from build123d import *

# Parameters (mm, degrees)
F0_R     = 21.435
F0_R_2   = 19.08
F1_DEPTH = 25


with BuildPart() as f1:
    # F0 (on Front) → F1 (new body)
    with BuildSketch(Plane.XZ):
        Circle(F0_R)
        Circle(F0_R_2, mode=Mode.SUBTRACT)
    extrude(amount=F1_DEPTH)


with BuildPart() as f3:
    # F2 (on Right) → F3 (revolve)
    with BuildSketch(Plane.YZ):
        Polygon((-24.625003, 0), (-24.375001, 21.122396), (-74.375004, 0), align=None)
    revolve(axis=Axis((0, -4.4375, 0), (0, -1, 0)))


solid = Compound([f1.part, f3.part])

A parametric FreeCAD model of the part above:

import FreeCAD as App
import Part
import Sketcher

V = App.Vector

doc = App.newDocument("Part")
body = doc.addObject("PartDesign::Body", "Body")

sketch1 = body.newObject("Sketcher::SketchObject", "Sketch")
sketch1.AttachmentSupport = (doc.getObject("XZ_Plane"), [""])
sketch1.MapMode = "FlatFace"
sketch1.addGeometry(Part.Circle(V(0, 0, 0), V(0, 0, 1), 21), False)
sketch1.addGeometry(Part.Circle(V(0, 0, 0), V(0, 0, 1), 19), False)
sketch1.addConstraint(Sketcher.Constraint("Coincident", 0, 3, -1, 1))
sketch1.addConstraint(Sketcher.Constraint("Coincident", 1, 3, -1, 1))
sketch1.addConstraint(Sketcher.Constraint("Diameter", 0, 42.87))
sketch1.addConstraint(Sketcher.Constraint("Diameter", 1, 38.16))
pad1 = body.newObject("PartDesign::Pad", "Pad")
pad1.Profile = sketch1
pad1.Length = 25
body2 = doc.addObject("PartDesign::Body", "Body001")

sketch2 = body2.newObject("Sketcher::SketchObject", "Sketch001")
sketch2.AttachmentSupport = (doc.getObject("YZ_Plane001"), [""])
sketch2.MapMode = "FlatFace"
sketch2.addGeometry(Part.LineSegment(V(-25, 0, 0), V(-24, 21, 0)), False)
sketch2.addGeometry(Part.LineSegment(V(-24, 21, 0), V(-74, 0, 0)), False)
sketch2.addGeometry(Part.LineSegment(V(-74, 0, 0), V(-25, 0, 0)), False)
sketch2.addConstraint(Sketcher.Constraint("Coincident", 0, 2, 1, 1))
sketch2.addConstraint(Sketcher.Constraint("Coincident", 1, 2, 2, 1))
sketch2.addConstraint(Sketcher.Constraint("Coincident", 2, 2, 0, 1))
sketch2.addConstraint(Sketcher.Constraint("Horizontal", 2))
sketch2.addConstraint(Sketcher.Constraint("PointOnObject", 1, 2, -1))
sketch2.addConstraint(Sketcher.Constraint("DistanceX", 2, 1, 2, 2, 49.750001))
sketch2.addConstraint(Sketcher.Constraint("DistanceX", 2, 2, 0, 2, 0.250002))
sketch2.addConstraint(Sketcher.Constraint("DistanceX", 0, 2, -1, 1, 24.375001))
sketch2.addConstraint(Sketcher.Constraint("Distance", 0, 21.123875))
revolution = body2.newObject("PartDesign::Revolution", "Revolution")
revolution.Profile = sketch2
revolution.ReferenceAxis = (sketch2, ["H_Axis"])
revolution.Angle = 360

doc.recompute()
